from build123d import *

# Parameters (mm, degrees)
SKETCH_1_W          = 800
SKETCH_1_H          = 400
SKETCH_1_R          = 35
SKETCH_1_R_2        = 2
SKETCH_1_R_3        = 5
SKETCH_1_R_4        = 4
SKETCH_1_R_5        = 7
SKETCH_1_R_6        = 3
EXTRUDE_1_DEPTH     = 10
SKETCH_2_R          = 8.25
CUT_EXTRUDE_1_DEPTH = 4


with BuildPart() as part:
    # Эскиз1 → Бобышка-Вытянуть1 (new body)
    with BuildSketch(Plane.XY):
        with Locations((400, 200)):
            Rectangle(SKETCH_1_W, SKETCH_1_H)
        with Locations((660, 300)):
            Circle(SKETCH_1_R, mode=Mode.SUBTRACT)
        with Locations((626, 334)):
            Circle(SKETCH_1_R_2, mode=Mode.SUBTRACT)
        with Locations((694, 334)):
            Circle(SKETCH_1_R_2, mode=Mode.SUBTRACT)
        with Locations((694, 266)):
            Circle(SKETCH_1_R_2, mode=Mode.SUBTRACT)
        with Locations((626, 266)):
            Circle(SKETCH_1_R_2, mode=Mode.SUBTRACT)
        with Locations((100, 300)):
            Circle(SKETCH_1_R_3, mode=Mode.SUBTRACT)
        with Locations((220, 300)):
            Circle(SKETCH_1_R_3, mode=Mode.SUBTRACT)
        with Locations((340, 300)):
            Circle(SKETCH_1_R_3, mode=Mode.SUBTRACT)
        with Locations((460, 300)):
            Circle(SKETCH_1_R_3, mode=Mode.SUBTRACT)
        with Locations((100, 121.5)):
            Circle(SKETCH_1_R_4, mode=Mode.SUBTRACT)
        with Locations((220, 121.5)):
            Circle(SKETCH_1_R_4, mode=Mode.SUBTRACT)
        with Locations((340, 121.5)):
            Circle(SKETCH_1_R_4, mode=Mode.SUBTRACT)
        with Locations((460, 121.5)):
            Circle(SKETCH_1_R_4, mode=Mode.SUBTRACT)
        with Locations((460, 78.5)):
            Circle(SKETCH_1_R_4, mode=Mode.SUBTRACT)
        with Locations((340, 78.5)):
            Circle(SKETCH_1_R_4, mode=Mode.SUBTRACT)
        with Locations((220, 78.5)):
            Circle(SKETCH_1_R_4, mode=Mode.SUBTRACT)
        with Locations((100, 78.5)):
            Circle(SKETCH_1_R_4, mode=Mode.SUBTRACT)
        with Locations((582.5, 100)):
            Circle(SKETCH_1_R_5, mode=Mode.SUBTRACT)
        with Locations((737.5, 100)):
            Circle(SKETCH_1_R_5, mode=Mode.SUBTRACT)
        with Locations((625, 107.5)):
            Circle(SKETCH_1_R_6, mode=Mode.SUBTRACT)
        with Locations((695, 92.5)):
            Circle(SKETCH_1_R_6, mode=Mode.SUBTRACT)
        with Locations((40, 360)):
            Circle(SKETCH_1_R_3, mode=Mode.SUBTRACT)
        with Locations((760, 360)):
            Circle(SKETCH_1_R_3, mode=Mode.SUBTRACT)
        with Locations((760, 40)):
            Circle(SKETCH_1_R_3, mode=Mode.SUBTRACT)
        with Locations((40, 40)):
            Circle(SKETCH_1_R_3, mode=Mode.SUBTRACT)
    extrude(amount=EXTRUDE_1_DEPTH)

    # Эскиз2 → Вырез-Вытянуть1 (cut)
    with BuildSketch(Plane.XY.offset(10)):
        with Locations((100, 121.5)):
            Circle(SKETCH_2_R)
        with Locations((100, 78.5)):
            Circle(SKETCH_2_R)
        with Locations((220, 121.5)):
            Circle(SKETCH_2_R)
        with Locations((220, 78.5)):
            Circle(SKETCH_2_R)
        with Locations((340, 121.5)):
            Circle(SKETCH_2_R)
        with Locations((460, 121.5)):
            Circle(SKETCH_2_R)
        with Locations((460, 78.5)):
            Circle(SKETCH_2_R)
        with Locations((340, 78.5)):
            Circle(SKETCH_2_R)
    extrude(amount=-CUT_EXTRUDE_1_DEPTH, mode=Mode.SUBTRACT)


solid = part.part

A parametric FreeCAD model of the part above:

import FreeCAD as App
import Part
import Sketcher
Q = App.Units.Quantity


def add_polygon(sketch, points):
    """Adds a closed chain of lines whose ends are joined by coincident constraints."""
    first, n = sketch.GeometryCount, len(points)
    for a, b in zip(points, points[1:] + points[:1]):
        sketch.addGeometry(Part.LineSegment(App.Vector(*a, 0), App.Vector(*b, 0)), False)
    for i in range(n):
        sketch.addConstraint(Sketcher.Constraint("Coincident", first + i, 2, first + (i + 1) % n, 1))

doc = App.newDocument("Part")
body = doc.addObject("PartDesign::Body", "Body")

# Sketch on XY plane
sketch1 = body.newObject("Sketcher::SketchObject", "Sketch")
sketch1.AttachmentSupport = (doc.getObject("XY_Plane"), [""])
sketch1.MapMode = "FlatFace"
add_polygon(sketch1, [(0, 400), (0, 0), (800, 0), (800, 400)])  # lines 0-3
sketch1.addGeometry(Part.Circle(App.Vector(40, 40, 0), App.Vector(0, 0, 1), 5), False)  # 4
sketch1.addGeometry(Part.Circle(App.Vector(100, 78.5, 0), App.Vector(0, 0, 1), 4), False)  # 5
sketch1.addGeometry(Part.Circle(App.Vector(220, 78.5, 0), App.Vector(0, 0, 1), 4), False)  # 6
sketch1.addGeometry(Part.Circle(App.Vector(340, 78.5, 0), App.Vector(0, 0, 1), 4), False)  # 7
sketch1.addGeometry(Part.Circle(App.Vector(100, 121.5, 0), App.Vector(0, 0, 1), 4), False)  # 8
sketch1.addGeometry(Part.Circle(App.Vector(220, 121.5, 0), App.Vector(0, 0, 1), 4), False)  # 9
sketch1.addGeometry(Part.Circle(App.Vector(340, 121.5, 0), App.Vector(0, 0, 1), 4), False)  # 10
sketch1.addGeometry(Part.Circle(App.Vector(460, 78.5, 0), App.Vector(0, 0, 1), 4), False)  # 11
sketch1.addGeometry(Part.Circle(App.Vector(760, 40, 0), App.Vector(0, 0, 1), 5), False)  # 12
sketch1.addGeometry(Part.Circle(App.Vector(582.5, 100, 0), App.Vector(0, 0, 1), 7), False)  # 13
sketch1.addGeometry(Part.Circle(App.Vector(625, 107.5, 0), App.Vector(0, 0, 1), 3), False)  # 14
sketch1.addGeometry(Part.Circle(App.Vector(695, 92.5, 0), App.Vector(0, 0, 1), 3), False)  # 15
sketch1.addGeometry(Part.Circle(App.Vector(737.5, 100, 0), App.Vector(0, 0, 1), 7), False)  # 16
sketch1.addGeometry(Part.Circle(App.Vector(460, 121.5, 0), App.Vector(0, 0, 1), 4), False)  # 17
sketch1.addGeometry(Part.Circle(App.Vector(100, 300, 0), App.Vector(0, 0, 1), 5), False)  # 18
sketch1.addGeometry(Part.Circle(App.Vector(40, 360, 0), App.Vector(0, 0, 1), 5), False)  # 19
sketch1.addGeometry(Part.Circle(App.Vector(220, 300, 0), App.Vector(0, 0, 1), 5), False)  # 20
sketch1.addGeometry(Part.Circle(App.Vector(340, 300, 0), App.Vector(0, 0, 1), 5), False)  # 21
sketch1.addGeometry(Part.Circle(App.Vector(626, 266, 0), App.Vector(0, 0, 1), 2), False)  # 22
sketch1.addGeometry(Part.Circle(App.Vector(694, 266, 0), App.Vector(0, 0, 1), 2), False)  # 23
sketch1.addGeometry(Part.Circle(App.Vector(460, 300, 0), App.Vector(0, 0, 1), 5), False)  # 24
sketch1.addGeometry(Part.Circle(App.Vector(660, 300, 0), App.Vector(0, 0, 1), 35), False)  # 25
sketch1.addGeometry(Part.Circle(App.Vector(626, 334, 0), App.Vector(0, 0, 1), 2), False)  # 26
sketch1.addGeometry(Part.Circle(App.Vector(694, 334, 0), App.Vector(0, 0, 1), 2), False)  # 27
sketch1.addGeometry(Part.Circle(App.Vector(760, 360, 0), App.Vector(0, 0, 1), 5), False)  # 28
sketch1.addConstraint([
    Sketcher.Constraint("Vertical", 0),
    Sketcher.Constraint("Horizontal", 1),
    Sketcher.Constraint("Vertical", 2),
    Sketcher.Constraint("Horizontal", 3),
    Sketcher.Constraint("Coincident", 0, 2, -1, 1),
    Sketcher.Constraint("Equal", 5, 6),
    Sketcher.Constraint("Equal", 6, 7),
    Sketcher.Constraint("Equal", 7, 8),
    Sketcher.Constraint("Equal", 8, 9),
    Sketcher.Constraint("Equal", 9, 10),
    Sketcher.Constraint("Equal", 10, 11),
    Sketcher.Constraint("Equal", 4, 12),
    Sketcher.Constraint("Equal", 14, 15),
    Sketcher.Constraint("Equal", 13, 16),
    Sketcher.Constraint("Equal", 11, 17),
    Sketcher.Constraint("Equal", 12, 18),
    Sketcher.Constraint("Equal", 18, 19),
    Sketcher.Constraint("Equal", 19, 20),
    Sketcher.Constraint("Equal", 20, 21),
    Sketcher.Constraint("Equal", 22, 23),
    Sketcher.Constraint("Equal", 21, 24),
    Sketcher.Constraint("Equal", 23, 26),
    Sketcher.Constraint("Equal", 26, 27),
    Sketcher.Constraint("Equal", 24, 28),
    Sketcher.Constraint("Horizontal", 5, 3, 6, 3),
    Sketcher.Constraint("Horizontal", 6, 3, 7, 3),
    Sketcher.Constraint("Horizontal", 8, 3, 9, 3),
    Sketcher.Constraint("Horizontal", 9, 3, 10, 3),
    Sketcher.Constraint("Horizontal", 7, 3, 11, 3),
    Sketcher.Constraint("Horizontal", 4, 3, 12, 3),
    Sketcher.Constraint("Horizontal", 13, 3, 16, 3),
    Sketcher.Constraint("Horizontal", 10, 3, 17, 3),
    Sketcher.Constraint("Horizontal", 18, 3, 20, 3),
    Sketcher.Constraint("Horizontal", 20, 3, 21, 3),
    Sketcher.Constraint("Horizontal", 22, 3, 23, 3),
    Sketcher.Constraint("Horizontal", 21, 3, 24, 3),
    Sketcher.Constraint("Horizontal", 24, 3, 25, 3),
    Sketcher.Constraint("Horizontal", 26, 3, 27, 3),
    Sketcher.Constraint("Horizontal", 19, 3, 28, 3),
    Sketcher.Constraint("Vertical", 5, 3, 8, 3),
    Sketcher.Constraint("Vertical", 6, 3, 9, 3),
    Sketcher.Constraint("Vertical", 7, 3, 10, 3),
    Sketcher.Constraint("Vertical", 11, 3, 17, 3),
    Sketcher.Constraint("Vertical", 8, 3, 18, 3),
    Sketcher.Constraint("Vertical", 4, 3, 19, 3),
    Sketcher.Constraint("Vertical", 9, 3, 20, 3),
    Sketcher.Constraint("Vertical", 10, 3, 21, 3),
    Sketcher.Constraint("Vertical", 17, 3, 24, 3),
    Sketcher.Constraint("Vertical", 22, 3, 26, 3),
    Sketcher.Constraint("Vertical", 23, 3, 27, 3),
    Sketcher.Constraint("Vertical", 12, 3, 28, 3),
    Sketcher.Constraint("Diameter", 4, Q("10 mm")),
    Sketcher.Constraint("Diameter", 5, Q("8 mm")),
    Sketcher.Constraint("Diameter", 13, Q("14 mm")),
    Sketcher.Constraint("Diameter", 14, Q("6 mm")),
    Sketcher.Constraint("Diameter", 22, Q("4 mm")),
    Sketcher.Constraint("Diameter", 25, Q("70 mm")),
    Sketcher.Constraint("DistanceX", 1, 1, 1, 2, Q("800 mm")),
    Sketcher.Constraint("DistanceY", 0, 2, 0, 1, Q("400 mm")),
    Sketcher.Constraint("DistanceX", -1, 1, 4, 3, Q("40 mm")),
    Sketcher.Constraint("DistanceY", -1, 1, 4, 3, Q("40 mm")),
    Sketcher.Constraint("DistanceX", -1, 1, 5, 3, Q("100 mm")),
    Sketcher.Constraint("DistanceX", -1, 1, 6, 3, Q("220 mm")),
    Sketcher.Constraint("DistanceX", -1, 1, 7, 3, Q("340 mm")),
    Sketcher.Constraint("DistanceX", -1, 1, 11, 3, Q("460 mm")),
    Sketcher.Constraint("DistanceX", -1, 1, 12, 3, Q("760 mm")),
    Sketcher.Constraint("DistanceY", -1, 1, 13, 3, Q("100 mm")),
    Sketcher.Constraint("DistanceX", -1, 1, 14, 3, Q("625 mm")),
    Sketcher.Constraint("DistanceX", -1, 1, 15, 3, Q("695 mm")),
    Sketcher.Constraint("DistanceY", -1, 1, 18, 3, Q("300 mm")),
    Sketcher.Constraint("DistanceY", -1, 1, 19, 3, Q("360 mm")),
    Sketcher.Constraint("DistanceX", -1, 1, 22, 3, Q("626 mm")),
    Sketcher.Constraint("DistanceY", -1, 1, 22, 3, Q("266 mm")),
    Sketcher.Constraint("DistanceX", -1, 1, 23, 3, Q("694 mm")),
    Sketcher.Constraint("DistanceX", -1, 1, 25, 3, Q("660 mm")),
    Sketcher.Constraint("DistanceY", -1, 1, 26, 3, Q("334 mm")),
    Sketcher.Constraint("DistanceY", 5, 3, 8, 3, Q("43 mm")),
    Sketcher.Constraint("DistanceY", 11, 3, 14, 3, Q("29 mm")),
    Sketcher.Constraint("DistanceY", 15, 3, 14, 3, Q("15 mm")),
    Sketcher.Constraint("DistanceX", 13, 3, 16, 3, Q("155 mm")),
    Sketcher.Constraint("DistanceY", -1, 1, 5, 3, Q("78.5 mm")),
    Sketcher.Constraint("DistanceX", -1, 1, 13, 3, Q("582.5 mm")),
])
pad1 = body.newObject("PartDesign::Pad", "Pad")
pad1.Profile = sketch1
pad1.Length = 10

# Sketch on XY plane
sketch2 = body.newObject("Sketcher::SketchObject", "Sketch001")
sketch2.AttachmentSupport = (doc.getObject("XY_Plane"), [""])
sketch2.MapMode = "FlatFace"
sketch2.AttachmentOffset = App.Placement(App.Vector(0, 0, 10), App.Rotation())
sketch2.addGeometry([
    Part.Circle(App.Vector(100, 122, 0), App.Vector(0, 0, 1), 8),  # 0
    Part.Circle(App.Vector(100, 78, 0), App.Vector(0, 0, 1), 8),  # 1
    Part.Circle(App.Vector(220, 122, 0), App.Vector(0, 0, 1), 8),  # 2
    Part.Circle(App.Vector(220, 78, 0), App.Vector(0, 0, 1), 8),  # 3
    Part.Circle(App.Vector(340, 122, 0), App.Vector(0, 0, 1), 8),  # 4
    Part.Circle(App.Vector(460, 122, 0), App.Vector(0, 0, 1), 8),  # 5
    Part.Circle(App.Vector(460, 78, 0), App.Vector(0, 0, 1), 8),  # 6
    Part.Circle(App.Vector(340, 78, 0), App.Vector(0, 0, 1), 8),  # 7
], False)
sketch2.addConstraint([
    Sketcher.Constraint("Equal", 0, 1),
    Sketcher.Constraint("Equal", 1, 2),
    Sketcher.Constraint("Equal", 2, 3),
    Sketcher.Constraint("Equal", 3, 4),
    Sketcher.Constraint("Equal", 4, 5),
    Sketcher.Constraint("Equal", 5, 6),
    Sketcher.Constraint("Equal", 6, 7),
    Sketcher.Constraint("Horizontal", 0, 3, 2, 3),
    Sketcher.Constraint("Horizontal", 1, 3, 3, 3),
    Sketcher.Constraint("Horizontal", 2, 3, 4, 3),
    Sketcher.Constraint("Horizontal", 4, 3, 5, 3),
    Sketcher.Constraint("Horizontal", 3, 3, 6, 3),
    Sketcher.Constraint("Horizontal", 6, 3, 7, 3),
    Sketcher.Constraint("Vertical", 0, 3, 1, 3),
    Sketcher.Constraint("Vertical", 2, 3, 3, 3),
    Sketcher.Constraint("Vertical", 5, 3, 6, 3),
    Sketcher.Constraint("Vertical", 4, 3, 7, 3),
    Sketcher.Constraint("Diameter", 0, Q("16.5 mm")),
    Sketcher.Constraint("DistanceX", -1, 1, 0, 3, Q("100 mm")),
    Sketcher.Constraint("DistanceX", -1, 1, 2, 3, Q("220 mm")),
    Sketcher.Constraint("DistanceX", -1, 1, 4, 3, Q("340 mm")),
    Sketcher.Constraint("DistanceX", -1, 1, 5, 3, Q("460 mm")),
    Sketcher.Constraint("DistanceY", 1, 3, 0, 3, Q("43 mm")),
    Sketcher.Constraint("DistanceY", -1, 1, 0, 3, Q("121.5 mm")),
])
pocket1 = body.newObject("PartDesign::Pocket", "Pocket")
pocket1.Profile = sketch2
pocket1.Length = 4

doc.recompute()
